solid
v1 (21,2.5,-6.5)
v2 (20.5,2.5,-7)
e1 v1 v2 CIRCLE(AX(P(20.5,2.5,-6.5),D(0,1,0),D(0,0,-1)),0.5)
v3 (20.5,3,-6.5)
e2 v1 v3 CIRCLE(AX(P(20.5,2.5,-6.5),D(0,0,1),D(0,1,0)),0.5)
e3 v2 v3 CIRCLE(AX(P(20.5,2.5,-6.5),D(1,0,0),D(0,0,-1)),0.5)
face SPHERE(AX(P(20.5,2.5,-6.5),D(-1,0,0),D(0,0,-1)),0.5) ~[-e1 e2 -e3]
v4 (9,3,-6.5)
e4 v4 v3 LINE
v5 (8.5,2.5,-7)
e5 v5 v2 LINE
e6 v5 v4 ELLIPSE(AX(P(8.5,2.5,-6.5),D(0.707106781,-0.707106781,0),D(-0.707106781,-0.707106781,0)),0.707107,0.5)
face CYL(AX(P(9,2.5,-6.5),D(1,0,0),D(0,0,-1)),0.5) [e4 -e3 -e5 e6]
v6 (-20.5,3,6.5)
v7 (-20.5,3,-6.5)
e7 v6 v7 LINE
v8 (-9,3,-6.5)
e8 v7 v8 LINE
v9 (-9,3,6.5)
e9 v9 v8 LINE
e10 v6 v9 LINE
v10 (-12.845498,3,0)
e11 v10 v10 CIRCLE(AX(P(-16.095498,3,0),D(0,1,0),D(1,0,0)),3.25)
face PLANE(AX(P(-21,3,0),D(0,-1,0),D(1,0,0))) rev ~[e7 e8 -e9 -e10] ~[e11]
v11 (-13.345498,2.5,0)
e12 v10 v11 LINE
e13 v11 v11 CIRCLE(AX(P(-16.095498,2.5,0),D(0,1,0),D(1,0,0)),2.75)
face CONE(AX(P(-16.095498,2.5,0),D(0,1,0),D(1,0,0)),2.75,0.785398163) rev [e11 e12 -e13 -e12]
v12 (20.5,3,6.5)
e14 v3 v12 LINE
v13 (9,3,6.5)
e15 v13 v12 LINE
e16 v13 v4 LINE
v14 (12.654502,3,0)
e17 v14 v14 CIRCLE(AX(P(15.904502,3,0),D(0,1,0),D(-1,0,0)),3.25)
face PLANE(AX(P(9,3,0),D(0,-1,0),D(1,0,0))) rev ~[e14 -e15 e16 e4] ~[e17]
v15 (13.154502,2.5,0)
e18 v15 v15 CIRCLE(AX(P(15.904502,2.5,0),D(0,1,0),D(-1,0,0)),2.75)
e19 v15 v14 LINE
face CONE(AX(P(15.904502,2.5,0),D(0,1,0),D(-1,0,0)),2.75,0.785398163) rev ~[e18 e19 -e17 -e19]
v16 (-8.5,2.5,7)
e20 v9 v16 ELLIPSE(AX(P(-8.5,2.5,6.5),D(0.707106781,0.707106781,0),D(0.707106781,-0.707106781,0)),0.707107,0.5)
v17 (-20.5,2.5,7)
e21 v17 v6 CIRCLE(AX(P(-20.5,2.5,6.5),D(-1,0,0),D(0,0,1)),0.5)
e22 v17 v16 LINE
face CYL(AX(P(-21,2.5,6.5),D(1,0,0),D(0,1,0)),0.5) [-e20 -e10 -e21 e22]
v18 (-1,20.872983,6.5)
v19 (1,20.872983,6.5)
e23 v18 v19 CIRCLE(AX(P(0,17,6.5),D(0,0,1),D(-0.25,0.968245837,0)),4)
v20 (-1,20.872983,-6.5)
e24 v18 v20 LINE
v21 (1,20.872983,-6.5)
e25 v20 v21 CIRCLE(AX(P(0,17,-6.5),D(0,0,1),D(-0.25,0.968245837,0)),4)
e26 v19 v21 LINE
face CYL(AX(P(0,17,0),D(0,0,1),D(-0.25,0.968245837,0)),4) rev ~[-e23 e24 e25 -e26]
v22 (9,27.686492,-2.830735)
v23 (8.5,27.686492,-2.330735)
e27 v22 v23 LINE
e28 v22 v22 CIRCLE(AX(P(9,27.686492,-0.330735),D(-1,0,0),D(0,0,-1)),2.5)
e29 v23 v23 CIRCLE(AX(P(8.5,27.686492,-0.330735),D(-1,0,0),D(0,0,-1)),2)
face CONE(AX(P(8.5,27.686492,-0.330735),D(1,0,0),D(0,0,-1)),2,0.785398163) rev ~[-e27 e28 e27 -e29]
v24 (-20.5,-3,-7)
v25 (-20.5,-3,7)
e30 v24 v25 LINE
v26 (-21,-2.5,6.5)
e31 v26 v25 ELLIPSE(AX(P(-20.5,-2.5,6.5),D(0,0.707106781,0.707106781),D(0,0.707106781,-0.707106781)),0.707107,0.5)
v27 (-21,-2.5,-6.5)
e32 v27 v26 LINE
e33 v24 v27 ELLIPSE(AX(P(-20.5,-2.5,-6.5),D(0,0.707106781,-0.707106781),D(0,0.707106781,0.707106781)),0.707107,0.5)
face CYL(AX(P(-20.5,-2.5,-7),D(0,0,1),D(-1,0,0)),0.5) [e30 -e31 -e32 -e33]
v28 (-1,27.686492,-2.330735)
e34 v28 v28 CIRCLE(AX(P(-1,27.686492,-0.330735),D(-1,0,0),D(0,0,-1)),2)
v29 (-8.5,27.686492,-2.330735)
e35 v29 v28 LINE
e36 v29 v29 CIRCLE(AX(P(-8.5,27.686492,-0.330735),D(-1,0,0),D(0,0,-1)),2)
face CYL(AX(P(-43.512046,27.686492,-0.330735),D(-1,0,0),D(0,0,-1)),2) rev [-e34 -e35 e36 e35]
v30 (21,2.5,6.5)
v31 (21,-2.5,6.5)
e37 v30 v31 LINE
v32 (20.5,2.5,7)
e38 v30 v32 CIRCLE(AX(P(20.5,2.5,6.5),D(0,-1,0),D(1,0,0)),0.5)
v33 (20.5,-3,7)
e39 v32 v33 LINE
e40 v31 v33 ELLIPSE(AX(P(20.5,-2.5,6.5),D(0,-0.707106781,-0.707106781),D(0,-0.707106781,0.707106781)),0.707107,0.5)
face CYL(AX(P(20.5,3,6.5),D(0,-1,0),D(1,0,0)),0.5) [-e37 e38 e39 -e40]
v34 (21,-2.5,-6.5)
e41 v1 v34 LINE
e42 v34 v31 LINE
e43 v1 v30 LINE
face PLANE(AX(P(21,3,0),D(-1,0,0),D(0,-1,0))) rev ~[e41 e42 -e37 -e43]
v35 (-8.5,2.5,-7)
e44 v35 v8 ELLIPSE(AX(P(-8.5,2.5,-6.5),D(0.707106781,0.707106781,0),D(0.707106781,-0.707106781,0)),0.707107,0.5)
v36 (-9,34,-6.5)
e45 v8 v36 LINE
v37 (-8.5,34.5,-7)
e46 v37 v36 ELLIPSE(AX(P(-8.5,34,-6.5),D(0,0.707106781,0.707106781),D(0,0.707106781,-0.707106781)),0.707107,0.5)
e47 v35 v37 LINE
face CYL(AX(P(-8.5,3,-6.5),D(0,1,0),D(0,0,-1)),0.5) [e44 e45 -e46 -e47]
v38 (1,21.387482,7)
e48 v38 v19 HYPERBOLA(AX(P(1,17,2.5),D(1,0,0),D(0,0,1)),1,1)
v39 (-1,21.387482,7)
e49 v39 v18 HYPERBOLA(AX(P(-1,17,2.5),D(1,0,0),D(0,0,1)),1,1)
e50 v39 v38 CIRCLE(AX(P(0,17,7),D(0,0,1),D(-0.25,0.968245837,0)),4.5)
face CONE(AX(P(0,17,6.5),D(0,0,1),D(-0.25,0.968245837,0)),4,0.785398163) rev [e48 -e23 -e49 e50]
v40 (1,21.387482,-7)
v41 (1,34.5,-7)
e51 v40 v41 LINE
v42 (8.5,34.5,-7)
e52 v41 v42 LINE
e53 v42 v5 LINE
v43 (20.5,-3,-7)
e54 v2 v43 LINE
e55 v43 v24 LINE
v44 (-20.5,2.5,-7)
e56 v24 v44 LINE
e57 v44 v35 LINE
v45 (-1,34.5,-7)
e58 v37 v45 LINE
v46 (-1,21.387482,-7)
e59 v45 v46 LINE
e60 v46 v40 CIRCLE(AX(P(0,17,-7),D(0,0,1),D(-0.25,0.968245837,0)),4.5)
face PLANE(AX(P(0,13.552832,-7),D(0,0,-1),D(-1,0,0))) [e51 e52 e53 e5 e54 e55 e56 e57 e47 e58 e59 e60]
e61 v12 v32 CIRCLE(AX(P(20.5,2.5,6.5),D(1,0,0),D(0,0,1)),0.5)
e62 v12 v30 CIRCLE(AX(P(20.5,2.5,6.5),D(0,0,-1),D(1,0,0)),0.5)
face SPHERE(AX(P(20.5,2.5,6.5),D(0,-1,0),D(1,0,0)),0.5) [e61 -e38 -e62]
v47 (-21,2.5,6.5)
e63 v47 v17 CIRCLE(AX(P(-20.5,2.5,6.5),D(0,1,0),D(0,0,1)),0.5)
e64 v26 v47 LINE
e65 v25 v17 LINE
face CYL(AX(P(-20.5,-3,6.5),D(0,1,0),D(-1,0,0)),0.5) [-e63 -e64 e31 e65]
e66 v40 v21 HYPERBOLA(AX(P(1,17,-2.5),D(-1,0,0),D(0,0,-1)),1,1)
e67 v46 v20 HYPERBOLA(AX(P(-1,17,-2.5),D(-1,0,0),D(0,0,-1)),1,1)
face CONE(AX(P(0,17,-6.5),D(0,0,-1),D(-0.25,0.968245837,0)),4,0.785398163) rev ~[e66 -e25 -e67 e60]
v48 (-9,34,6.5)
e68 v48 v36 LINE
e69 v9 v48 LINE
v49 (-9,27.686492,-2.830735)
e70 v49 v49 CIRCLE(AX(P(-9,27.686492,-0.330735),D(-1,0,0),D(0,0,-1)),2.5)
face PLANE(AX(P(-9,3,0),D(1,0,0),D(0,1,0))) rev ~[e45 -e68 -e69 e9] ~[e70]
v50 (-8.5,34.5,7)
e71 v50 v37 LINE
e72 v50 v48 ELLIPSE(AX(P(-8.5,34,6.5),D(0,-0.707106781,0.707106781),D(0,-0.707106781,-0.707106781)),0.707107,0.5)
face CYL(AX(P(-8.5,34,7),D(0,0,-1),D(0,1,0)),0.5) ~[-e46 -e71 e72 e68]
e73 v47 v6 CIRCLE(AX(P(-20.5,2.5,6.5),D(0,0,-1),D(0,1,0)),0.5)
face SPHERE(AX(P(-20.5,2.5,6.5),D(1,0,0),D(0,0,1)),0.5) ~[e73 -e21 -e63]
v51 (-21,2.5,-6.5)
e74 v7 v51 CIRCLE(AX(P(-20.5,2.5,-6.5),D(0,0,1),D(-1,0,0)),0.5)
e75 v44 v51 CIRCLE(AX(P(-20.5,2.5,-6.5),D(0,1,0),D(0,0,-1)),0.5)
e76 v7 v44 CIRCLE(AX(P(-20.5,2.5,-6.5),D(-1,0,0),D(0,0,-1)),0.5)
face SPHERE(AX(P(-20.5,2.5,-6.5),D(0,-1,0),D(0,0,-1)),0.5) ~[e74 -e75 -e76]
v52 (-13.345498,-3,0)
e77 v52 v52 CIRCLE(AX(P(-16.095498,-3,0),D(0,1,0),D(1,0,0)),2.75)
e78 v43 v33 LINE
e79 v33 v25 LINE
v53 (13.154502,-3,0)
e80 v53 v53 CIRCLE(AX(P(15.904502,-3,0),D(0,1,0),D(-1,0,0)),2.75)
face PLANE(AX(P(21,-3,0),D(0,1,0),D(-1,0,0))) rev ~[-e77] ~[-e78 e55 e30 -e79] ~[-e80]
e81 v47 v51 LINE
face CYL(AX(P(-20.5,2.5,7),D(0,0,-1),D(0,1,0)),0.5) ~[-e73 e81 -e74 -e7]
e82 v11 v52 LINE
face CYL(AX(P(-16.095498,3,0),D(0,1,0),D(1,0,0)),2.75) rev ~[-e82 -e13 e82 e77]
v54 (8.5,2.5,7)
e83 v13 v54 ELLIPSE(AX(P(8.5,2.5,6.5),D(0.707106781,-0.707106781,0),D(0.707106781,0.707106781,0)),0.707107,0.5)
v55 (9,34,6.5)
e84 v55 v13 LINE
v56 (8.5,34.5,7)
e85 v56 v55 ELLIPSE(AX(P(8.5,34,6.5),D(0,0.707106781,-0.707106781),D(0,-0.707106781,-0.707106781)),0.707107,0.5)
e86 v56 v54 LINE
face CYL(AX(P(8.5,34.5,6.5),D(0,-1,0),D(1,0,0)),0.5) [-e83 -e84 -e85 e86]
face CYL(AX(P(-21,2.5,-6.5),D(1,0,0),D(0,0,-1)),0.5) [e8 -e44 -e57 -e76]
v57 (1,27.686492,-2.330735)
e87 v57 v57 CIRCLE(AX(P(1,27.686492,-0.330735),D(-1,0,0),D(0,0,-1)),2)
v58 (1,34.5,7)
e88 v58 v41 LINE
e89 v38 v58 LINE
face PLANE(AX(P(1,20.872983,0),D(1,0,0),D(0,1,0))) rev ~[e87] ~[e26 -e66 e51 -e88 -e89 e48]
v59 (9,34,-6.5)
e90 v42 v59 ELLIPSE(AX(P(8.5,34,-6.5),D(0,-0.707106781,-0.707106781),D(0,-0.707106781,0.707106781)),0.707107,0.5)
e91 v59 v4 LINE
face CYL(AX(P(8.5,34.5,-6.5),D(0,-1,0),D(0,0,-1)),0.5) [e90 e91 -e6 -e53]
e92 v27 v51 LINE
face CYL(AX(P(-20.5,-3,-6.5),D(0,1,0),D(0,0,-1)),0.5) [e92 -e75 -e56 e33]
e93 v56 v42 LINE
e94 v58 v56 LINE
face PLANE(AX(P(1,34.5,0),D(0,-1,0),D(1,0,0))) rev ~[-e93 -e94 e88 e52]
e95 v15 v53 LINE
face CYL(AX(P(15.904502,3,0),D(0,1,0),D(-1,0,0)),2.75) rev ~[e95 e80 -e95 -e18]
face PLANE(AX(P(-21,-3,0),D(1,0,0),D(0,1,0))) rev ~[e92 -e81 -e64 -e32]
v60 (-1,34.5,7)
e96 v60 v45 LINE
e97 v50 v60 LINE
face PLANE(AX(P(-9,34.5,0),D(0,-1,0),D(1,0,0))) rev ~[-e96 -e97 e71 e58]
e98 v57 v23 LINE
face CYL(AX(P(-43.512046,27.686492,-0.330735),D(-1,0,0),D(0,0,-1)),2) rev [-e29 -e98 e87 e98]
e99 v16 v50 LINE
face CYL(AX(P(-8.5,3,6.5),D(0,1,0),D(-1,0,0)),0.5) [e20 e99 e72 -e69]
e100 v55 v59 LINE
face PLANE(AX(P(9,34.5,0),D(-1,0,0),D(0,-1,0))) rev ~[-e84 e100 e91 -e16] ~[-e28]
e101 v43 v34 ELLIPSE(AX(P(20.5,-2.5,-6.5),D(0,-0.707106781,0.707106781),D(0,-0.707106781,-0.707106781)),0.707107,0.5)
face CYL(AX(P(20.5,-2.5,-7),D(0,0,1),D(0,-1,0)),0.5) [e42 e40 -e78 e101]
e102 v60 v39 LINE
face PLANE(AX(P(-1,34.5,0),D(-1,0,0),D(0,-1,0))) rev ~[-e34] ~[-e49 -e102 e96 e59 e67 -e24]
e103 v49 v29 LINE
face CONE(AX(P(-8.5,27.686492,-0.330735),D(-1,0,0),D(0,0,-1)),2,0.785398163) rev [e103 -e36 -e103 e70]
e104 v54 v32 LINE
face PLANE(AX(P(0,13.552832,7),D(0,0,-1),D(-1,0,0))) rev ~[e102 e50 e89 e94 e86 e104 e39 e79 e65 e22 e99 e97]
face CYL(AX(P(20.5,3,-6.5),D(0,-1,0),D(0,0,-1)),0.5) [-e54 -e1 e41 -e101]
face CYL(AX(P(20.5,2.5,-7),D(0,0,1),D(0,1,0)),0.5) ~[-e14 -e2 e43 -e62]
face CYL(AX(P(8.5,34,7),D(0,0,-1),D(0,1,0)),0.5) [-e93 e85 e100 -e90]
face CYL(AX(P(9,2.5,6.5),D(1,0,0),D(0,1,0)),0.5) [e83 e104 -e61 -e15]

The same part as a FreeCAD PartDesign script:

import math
import FreeCAD as App
import Part
import Sketcher

V = App.Vector
Q = App.Units.Quantity


def edges_at(feature, points):
    """Names of the edges that pass closest to the given points."""
    edges = feature.Shape.Edges
    near = lambda p: min(range(len(edges)), key=lambda i: edges[i].distToShape(Part.Vertex(*p))[0])
    return sorted({f"Edge{near(p) + 1}" for p in points})

doc = App.newDocument("Part")
body = doc.addObject("PartDesign::Body", "Body")

# Sketch on XY plane
sketch1 = body.newObject("Sketcher::SketchObject", "Sketch")
sketch1.AttachmentSupport = (doc.getObject("XY_Plane"), [""])
sketch1.MapMode = "FlatFace"
sketch1.addGeometry(Part.LineSegment(V(-21, 3, 0), V(-21, -3, 0)), False)
sketch1.addGeometry(Part.LineSegment(V(-21, -3, 0), V(21, -3, 0)), False)
sketch1.addGeometry(Part.LineSegment(V(21, -3, 0), V(21, 3, 0)), False)
sketch1.addGeometry(Part.LineSegment(V(21, 3, 0), V(9, 3, 0)), False)
sketch1.addGeometry(Part.LineSegment(V(9, 3, 0), V(9, 34.5, 0)), False)
sketch1.addGeometry(Part.LineSegment(V(9, 34.5, 0), V(1, 34.5, 0)), False)
sketch1.addGeometry(Part.LineSegment(V(1, 34.5, 0), V(1, 20.872983, 0)), False)
sketch1.addGeometry(Part.ArcOfCircle(Part.Circle(V(0, 17, 0), V(0, 0, 1), 4), math.radians(104.477512), math.radians(435.522488)), False)
sketch1.addGeometry(Part.LineSegment(V(-1, 20.872983, 0), V(-1, 34.5, 0)), False)
sketch1.addGeometry(Part.LineSegment(V(-1, 34.5, 0), V(-9, 34.5, 0)), False)
sketch1.addGeometry(Part.LineSegment(V(-9, 34.5, 0), V(-9, 3, 0)), False)
sketch1.addGeometry(Part.LineSegment(V(-9, 3, 0), V(-21, 3, 0)), False)
sketch1.addConstraint(Sketcher.Constraint("Coincident", 0, 2, 1, 1))
sketch1.addConstraint(Sketcher.Constraint("Coincident", 1, 2, 2, 1))
sketch1.addConstraint(Sketcher.Constraint("Coincident", 2, 2, 3, 1))
sketch1.addConstraint(Sketcher.Constraint("Coincident", 3, 2, 4, 1))
sketch1.addConstraint(Sketcher.Constraint("Coincident", 4, 2, 5, 1))
sketch1.addConstraint(Sketcher.Constraint("Coincident", 5, 2, 6, 1))
sketch1.addConstraint(Sketcher.Constraint("Coincident", 6, 2, 7, 2))
sketch1.addConstraint(Sketcher.Constraint("Coincident", 7, 1, 8, 1))
sketch1.addConstraint(Sketcher.Constraint("Coincident", 8, 2, 9, 1))
sketch1.addConstraint(Sketcher.Constraint("Coincident", 9, 2, 10, 1))
sketch1.addConstraint(Sketcher.Constraint("Coincident", 10, 2, 11, 1))
sketch1.addConstraint(Sketcher.Constraint("Coincident", 11, 2, 0, 1))
sketch1.addConstraint(Sketcher.Constraint("Vertical", 0))
sketch1.addConstraint(Sketcher.Constraint("Horizontal", 1))
sketch1.addConstraint(Sketcher.Constraint("Vertical", 2))
sketch1.addConstraint(Sketcher.Constraint("Horizontal", 3))
sketch1.addConstraint(Sketcher.Constraint("Vertical", 4))
sketch1.addConstraint(Sketcher.Constraint("Horizontal", 5))
sketch1.addConstraint(Sketcher.Constraint("Vertical", 6))
sketch1.addConstraint(Sketcher.Constraint("Vertical", 8))
sketch1.addConstraint(Sketcher.Constraint("Horizontal", 9))
sketch1.addConstraint(Sketcher.Constraint("Vertical", 10))
sketch1.addConstraint(Sketcher.Constraint("Horizontal", 11))
sketch1.addConstraint(Sketcher.Constraint("Symmetric", 0, 2, 2, 2, -1, 1))
sketch1.addConstraint(Sketcher.Constraint("Symmetric", 6, 2, 7, 1, -2))
sketch1.addConstraint(Sketcher.Constraint("Symmetric", 4, 2, 9, 2, -2))
sketch1.addConstraint(Sketcher.Constraint("Horizontal", 3, 2, 10, 2))
sketch1.addConstraint(Sketcher.Constraint("Radius", 7, Q("4 mm")))
sketch1.addConstraint(Sketcher.Constraint("DistanceX", 1, 1, 1, 2, Q("42 mm")))
sketch1.addConstraint(Sketcher.Constraint("DistanceX", 3, 2, 3, 1, Q("12 mm")))
sketch1.addConstraint(Sketcher.Constraint("DistanceX", 5, 2, 5, 1, Q("8 mm")))
sketch1.addConstraint(Sketcher.Constraint("DistanceY", 0, 2, 0, 1, Q("6 mm")))
sketch1.addConstraint(Sketcher.Constraint("DistanceY", 4, 1, 4, 2, Q("31.5 mm")))
sketch1.addConstraint(Sketcher.Constraint("DistanceY", -1, 1, 7, 3, Q("17 mm")))
pad1 = body.newObject("PartDesign::Pad", "Pad")
pad1.Profile = sketch1
pad1.Length = 14
pad1.Midplane = True

# Sketch on XZ plane
sketch2 = body.newObject("Sketcher::SketchObject", "Sketch001")
sketch2.AttachmentSupport = (doc.getObject("XZ_Plane"), [""])
sketch2.MapMode = "FlatFace"
sketch2.AttachmentOffset = App.Placement(V(0, 0, -3), App.Rotation())
sketch2.addGeometry(Part.Circle(V(15.904502, 0, 0), V(0, 0, 1), 2.75), False)
sketch2.addGeometry(Part.Circle(V(-16.095498, 0, 0), V(0, 0, 1), 2.75), False)
sketch2.addConstraint(Sketcher.Constraint("Equal", 0, 1))
sketch2.addConstraint(Sketcher.Constraint("PointOnObject", 0, 3, -1))
sketch2.addConstraint(Sketcher.Constraint("PointOnObject", 1, 3, -1))
sketch2.addConstraint(Sketcher.Constraint("Diameter", 0, Q("5.5 mm")))
sketch2.addConstraint(Sketcher.Constraint("DistanceX", 1, 3, 0, 3, Q("32 mm")))
sketch2.addConstraint(Sketcher.Constraint("DistanceX", -1, 1, 0, 3, Q("15.904502 mm")))
pocket1 = body.newObject("PartDesign::Pocket", "Pocket")
pocket1.Profile = sketch2
pocket1.Type = "ThroughAll"
pocket1.Reversed = True

# Sketch on YZ plane
sketch3 = body.newObject("Sketcher::SketchObject", "Sketch002")
sketch3.AttachmentSupport = (doc.getObject("YZ_Plane"), [""])
sketch3.MapMode = "FlatFace"
sketch3.AttachmentOffset = App.Placement(V(0, 0, -1), App.Rotation())
sketch3.addGeometry(Part.Circle(V(27.686492, -0.330735, 0), V(0, 0, 1), 2), False)
sketch3.addConstraint(Sketcher.Constraint("Diameter", 0, Q("4 mm")))
sketch3.addConstraint(Sketcher.Constraint("DistanceX", -1, 1, 0, 3, Q("27.686492 mm")))
sketch3.addConstraint(Sketcher.Constraint("DistanceY", 0, 3, -1, 1, Q("0.330735 mm")))
pocket2 = body.newObject("PartDesign::Pocket", "Pocket001")
pocket2.Profile = sketch3
pocket2.Type = "ThroughAll"
pocket2.Midplane = True
doc.recompute()

chamfer = body.newObject("PartDesign::Chamfer", "Chamfer")
chamfer.Base = (pocket2, edges_at(pocket2, [
    (0, 13, -7),
    (0, 13, 7),
    (18.655, 3, 0),
    (-18.845, 3, 0),
    (-9, 27.686, 1.669),
    (9, 27.686, 1.669),
]))
chamfer.Size = 0.5
doc.recompute()

fillet = body.newObject("PartDesign::Fillet", "Fillet")
fillet.Base = (chamfer, edges_at(chamfer, [
    (-15, 3, 7),
    (9, 18.75, -7),
    (15, 3, -7),
    (-21, 0, 7),
    (21, 0, -7),
    (-21, 0, -7),
    (-15, 3, -7),
    (-9, 18.75, -7),
    (21, 0, 7),
    (9, 34.5, 0),
    (21, 3, 0),
    (21, -3, 0),
    (-21, -3, 0),
    (-21, 3, 0),
    (-9, 34.5, 0),
    (15, 3, 7),
    (9, 18.75, 7),
    (-9, 18.75, 7),
]))
fillet.Radius = 0.5

doc.recompute()
